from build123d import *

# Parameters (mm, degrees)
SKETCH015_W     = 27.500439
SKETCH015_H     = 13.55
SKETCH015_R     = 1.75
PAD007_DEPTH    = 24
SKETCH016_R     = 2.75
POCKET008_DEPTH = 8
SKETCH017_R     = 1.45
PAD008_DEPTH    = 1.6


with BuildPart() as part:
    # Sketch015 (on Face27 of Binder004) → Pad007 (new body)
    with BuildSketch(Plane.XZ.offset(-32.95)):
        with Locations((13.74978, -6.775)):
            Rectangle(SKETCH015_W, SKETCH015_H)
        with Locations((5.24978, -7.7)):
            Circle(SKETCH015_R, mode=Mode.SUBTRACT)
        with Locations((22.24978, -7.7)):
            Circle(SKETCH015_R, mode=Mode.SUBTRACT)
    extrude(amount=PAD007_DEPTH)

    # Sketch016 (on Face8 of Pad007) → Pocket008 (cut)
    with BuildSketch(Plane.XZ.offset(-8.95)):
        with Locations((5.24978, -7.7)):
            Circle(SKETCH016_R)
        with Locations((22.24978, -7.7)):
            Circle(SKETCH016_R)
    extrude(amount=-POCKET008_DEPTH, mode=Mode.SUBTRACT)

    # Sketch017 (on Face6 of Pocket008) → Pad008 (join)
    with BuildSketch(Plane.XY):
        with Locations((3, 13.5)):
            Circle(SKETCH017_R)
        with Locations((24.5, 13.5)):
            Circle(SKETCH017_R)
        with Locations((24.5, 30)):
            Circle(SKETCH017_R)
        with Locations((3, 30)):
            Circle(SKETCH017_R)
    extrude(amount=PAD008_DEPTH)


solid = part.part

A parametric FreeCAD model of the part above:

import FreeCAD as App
import Part
import Sketcher

V = App.Vector
Q = App.Units.Quantity

doc = App.newDocument("Part")
params = doc.addObject("Spreadsheet::Sheet", "Params")
for row, (alias, value) in enumerate([
    ("sketch1_diameter", "3.5 mm"),
    ("sketch1_height", "13.55 mm"),
    ("pad1_length", "24 mm"),
    ("sketch2_diameter", "5.5 mm"),
    ("pocket1_length", "8 mm"),
    ("sketch3_diameter", "2.9 mm"),
    ("pad2_length", "1.6 mm"),
], start=1):
    params.set(f"A{row}", alias)
    params.set(f"B{row}", "=" + value)
    params.setAlias(f"B{row}", alias)

body = doc.addObject("PartDesign::Body", "Body")

# Sketch on XZ plane
sketch1 = body.newObject("Sketcher::SketchObject", "Sketch")
sketch1.AttachmentSupport = (doc.getObject("XZ_Plane"), [""])
sketch1.MapMode = "FlatFace"
sketch1.AttachmentOffset = App.Placement(V(0, 0, -32.95), App.Rotation())
sketch1.addGeometry(Part.LineSegment(V(0, 0, 0), V(0, -13.6, 0)), False)
sketch1.addGeometry(Part.LineSegment(V(0, -13.6, 0), V(27.5, -13.6, 0)), False)
sketch1.addGeometry(Part.LineSegment(V(27.5, -13.6, 0), V(27.5, 0, 0)), False)
sketch1.addGeometry(Part.LineSegment(V(27.5, 0, 0), V(0, 0, 0)), False)
sketch1.addGeometry(Part.Circle(V(5.2, -7.7, 0), V(0, 0, 1), 1.8), False)
sketch1.addGeometry(Part.Circle(V(22.2, -7.7, 0), V(0, 0, 1), 1.8), False)
sketch1.addConstraint(Sketcher.Constraint("Coincident", 0, 2, 1, 1))
sketch1.addConstraint(Sketcher.Constraint("Coincident", 1, 2, 2, 1))
sketch1.addConstraint(Sketcher.Constraint("Coincident", 2, 2, 3, 1))
sketch1.addConstraint(Sketcher.Constraint("Coincident", 3, 2, 0, 1))
sketch1.addConstraint(Sketcher.Constraint("Vertical", 0))
sketch1.addConstraint(Sketcher.Constraint("Horizontal", 1))
sketch1.addConstraint(Sketcher.Constraint("Vertical", 2))
sketch1.addConstraint(Sketcher.Constraint("Horizontal", 3))
sketch1.addConstraint(Sketcher.Constraint("Equal", 4, 5))
sketch1.addConstraint(Sketcher.Constraint("PointOnObject", 2, 2, -1))
sketch1.addConstraint(Sketcher.Constraint("Horizontal", 4, 3, 5, 3))
sketch1.addConstraint(Sketcher.Constraint("Diameter", 4, Q("3.5 mm")))
sketch1.addConstraint(Sketcher.Constraint("DistanceX", 4, 3, 5, 3, Q("17 mm")))
sketch1.addConstraint(Sketcher.Constraint("DistanceY", 0, 2, 0, 1, Q("13.55 mm")))
sketch1.addConstraint(Sketcher.Constraint("DistanceY", 4, 3, -1, 1, Q("7.7 mm")))
sketch1.addConstraint(Sketcher.Constraint("DistanceX", -1, 1, 1, 2, Q("27.5 mm")))
sketch1.addConstraint(Sketcher.Constraint("DistanceX", 1, 1, 1, 2, Q("27.500439 mm")))
sketch1.addConstraint(Sketcher.Constraint("DistanceX", -1, 1, 4, 3, Q("5.24978 mm")))
sketch1.setExpression("Constraints[11]", "Params.sketch1_diameter")
sketch1.setExpression("Constraints[13]", "Params.sketch1_height")
pad1 = body.newObject("PartDesign::Pad", "Pad")
pad1.Profile = sketch1
pad1.setExpression("Length", "Params.pad1_length")

# Sketch on XZ plane
sketch2 = body.newObject("Sketcher::SketchObject", "Sketch001")
sketch2.AttachmentSupport = (doc.getObject("XZ_Plane"), [""])
sketch2.MapMode = "FlatFace"
sketch2.AttachmentOffset = App.Placement(V(0, 0, -8.95), App.Rotation())
sketch2.addGeometry(Part.Circle(V(5.2, -7.7, 0), V(0, 0, 1), 2.8), False)
sketch2.addGeometry(Part.Circle(V(22.2, -7.7, 0), V(0, 0, 1), 2.8), False)
sketch2.addConstraint(Sketcher.Constraint("Equal", 0, 1))
sketch2.addConstraint(Sketcher.Constraint("Horizontal", 0, 3, 1, 3))
sketch2.addConstraint(Sketcher.Constraint("Diameter", 0, Q("5.5 mm")))
sketch2.addConstraint(Sketcher.Constraint("DistanceX", 0, 3, 1, 3, Q("17 mm")))
sketch2.addConstraint(Sketcher.Constraint("DistanceY", 0, 3, -1, 1, Q("7.7 mm")))
sketch2.addConstraint(Sketcher.Constraint("DistanceX", -1, 1, 0, 3, Q("5.24978 mm")))
sketch2.setExpression("Constraints[2]", "Params.sketch2_diameter")
pocket1 = body.newObject("PartDesign::Pocket", "Pocket")
pocket1.Profile = sketch2
pocket1.setExpression("Length", "Params.pocket1_length")

# Sketch on XY plane
sketch3 = body.newObject("Sketcher::SketchObject", "Sketch002")
sketch3.AttachmentSupport = (doc.getObject("XY_Plane"), [""])
sketch3.MapMode = "FlatFace"
sketch3.addGeometry(Part.Circle(V(3, 13.5, 0), V(0, 0, 1), 1.4), False)
sketch3.addGeometry(Part.Circle(V(24.5, 13.5, 0), V(0, 0, 1), 1.4), False)
sketch3.addGeometry(Part.Circle(V(24.5, 30, 0), V(0, 0, 1), 1.4), False)
sketch3.addGeometry(Part.Circle(V(3, 30, 0), V(0, 0, 1), 1.4), False)
sketch3.addConstraint(Sketcher.Constraint("Equal", 0, 1))
sketch3.addConstraint(Sketcher.Constraint("Equal", 1, 2))
sketch3.addConstraint(Sketcher.Constraint("Equal", 2, 3))
sketch3.addConstraint(Sketcher.Constraint("Horizontal", 0, 3, 1, 3))
sketch3.addConstraint(Sketcher.Constraint("Horizontal", 2, 3, 3, 3))
sketch3.addConstraint(Sketcher.Constraint("Vertical", 1, 3, 2, 3))
sketch3.addConstraint(Sketcher.Constraint("Vertical", 0, 3, 3, 3))
sketch3.addConstraint(Sketcher.Constraint("Diameter", 0, Q("2.9 mm")))
sketch3.addConstraint(Sketcher.Constraint("DistanceX", -1, 1, 0, 3, Q("3 mm")))
sketch3.addConstraint(Sketcher.Constraint("DistanceY", -1, 1, 2, 3, Q("30 mm")))
sketch3.addConstraint(Sketcher.Constraint("DistanceY", -1, 1, 0, 3, Q("13.5 mm")))
sketch3.addConstraint(Sketcher.Constraint("DistanceX", -1, 1, 1, 3, Q("24.5 mm")))
sketch3.setExpression("Constraints[7]", "Params.sketch3_diameter")
pad2 = body.newObject("PartDesign::Pad", "Pad001")
pad2.Profile = sketch3
pad2.setExpression("Length", "Params.pad2_length")

doc.recompute()
